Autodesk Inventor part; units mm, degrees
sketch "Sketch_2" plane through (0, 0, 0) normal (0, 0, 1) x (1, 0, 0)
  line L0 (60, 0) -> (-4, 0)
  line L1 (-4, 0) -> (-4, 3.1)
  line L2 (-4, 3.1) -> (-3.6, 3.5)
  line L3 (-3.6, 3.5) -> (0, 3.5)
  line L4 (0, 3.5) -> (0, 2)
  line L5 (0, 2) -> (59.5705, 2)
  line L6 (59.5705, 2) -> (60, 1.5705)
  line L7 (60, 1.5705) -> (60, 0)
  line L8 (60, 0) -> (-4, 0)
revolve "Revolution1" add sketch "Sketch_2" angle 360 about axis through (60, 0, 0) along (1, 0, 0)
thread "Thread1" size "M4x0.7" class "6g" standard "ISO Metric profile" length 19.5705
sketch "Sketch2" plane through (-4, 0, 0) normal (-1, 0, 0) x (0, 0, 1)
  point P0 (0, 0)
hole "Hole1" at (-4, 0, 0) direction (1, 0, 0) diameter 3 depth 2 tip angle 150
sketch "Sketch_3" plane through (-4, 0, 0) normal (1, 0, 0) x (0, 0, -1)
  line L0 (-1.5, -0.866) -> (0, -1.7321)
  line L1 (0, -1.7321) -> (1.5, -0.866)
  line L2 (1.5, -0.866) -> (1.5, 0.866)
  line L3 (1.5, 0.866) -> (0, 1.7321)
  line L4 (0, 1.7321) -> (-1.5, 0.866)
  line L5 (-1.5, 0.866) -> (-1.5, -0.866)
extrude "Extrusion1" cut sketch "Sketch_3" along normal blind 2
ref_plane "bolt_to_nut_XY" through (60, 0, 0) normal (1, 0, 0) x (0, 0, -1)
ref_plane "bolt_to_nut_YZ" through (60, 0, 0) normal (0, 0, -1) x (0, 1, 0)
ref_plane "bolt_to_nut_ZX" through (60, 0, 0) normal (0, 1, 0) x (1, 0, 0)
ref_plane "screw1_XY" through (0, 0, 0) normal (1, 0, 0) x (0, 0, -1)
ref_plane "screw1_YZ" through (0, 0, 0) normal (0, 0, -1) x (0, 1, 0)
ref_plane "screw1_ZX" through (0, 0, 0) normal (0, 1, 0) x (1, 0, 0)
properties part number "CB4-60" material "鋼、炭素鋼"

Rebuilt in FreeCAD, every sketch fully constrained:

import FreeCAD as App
import Part
import Sketcher

V = App.Vector
Q = App.Units.Quantity

doc = App.newDocument("Part")
body = doc.addObject("PartDesign::Body", "Body")

sketch1 = body.newObject("Sketcher::SketchObject", "Sketch")
sketch1.AttachmentSupport = (doc.getObject("XY_Plane"), [""])
sketch1.MapMode = "FlatFace"
sketch1.addGeometry(Part.LineSegment(V(-4, 0, 0), V(60, 0, 0)), False)
sketch1.addGeometry(Part.LineSegment(V(60, 0, 0), V(60, 1.6, 0)), False)
sketch1.addGeometry(Part.LineSegment(V(60, 1.6, 0), V(59.6, 2, 0)), False)
sketch1.addGeometry(Part.LineSegment(V(59.6, 2, 0), V(0, 2, 0)), False)
sketch1.addGeometry(Part.LineSegment(V(0, 2, 0), V(0, 3.5, 0)), False)
sketch1.addGeometry(Part.LineSegment(V(0, 3.5, 0), V(-3.6, 3.5, 0)), False)
sketch1.addGeometry(Part.LineSegment(V(-3.6, 3.5, 0), V(-4, 3.1, 0)), False)
sketch1.addGeometry(Part.LineSegment(V(-4, 3.1, 0), V(-4, 0, 0)), False)
sketch1.addConstraint(Sketcher.Constraint("Coincident", 0, 2, 1, 1))
sketch1.addConstraint(Sketcher.Constraint("Coincident", 1, 2, 2, 1))
sketch1.addConstraint(Sketcher.Constraint("Coincident", 2, 2, 3, 1))
sketch1.addConstraint(Sketcher.Constraint("Coincident", 3, 2, 4, 1))
sketch1.addConstraint(Sketcher.Constraint("Coincident", 4, 2, 5, 1))
sketch1.addConstraint(Sketcher.Constraint("Coincident", 5, 2, 6, 1))
sketch1.addConstraint(Sketcher.Constraint("Coincident", 6, 2, 7, 1))
sketch1.addConstraint(Sketcher.Constraint("Coincident", 7, 2, 0, 1))
sketch1.addConstraint(Sketcher.Constraint("Horizontal", 0))
sketch1.addConstraint(Sketcher.Constraint("Vertical", 1))
sketch1.addConstraint(Sketcher.Constraint("Horizontal", 3))
sketch1.addConstraint(Sketcher.Constraint("Vertical", 4))
sketch1.addConstraint(Sketcher.Constraint("Horizontal", 5))
sketch1.addConstraint(Sketcher.Constraint("Vertical", 7))
sketch1.addConstraint(Sketcher.Constraint("PointOnObject", 0, 2, -1))
sketch1.addConstraint(Sketcher.Constraint("PointOnObject", 3, 2, -2))
sketch1.addConstraint(Sketcher.Constraint("Perpendicular", 2, 6))
sketch1.addConstraint(Sketcher.Constraint("DistanceX", 0, 1, 0, 2, 64.0))
sketch1.addConstraint(Sketcher.Constraint("Angle", 2, Q("135 deg")))
sketch1.addConstraint(Sketcher.Constraint("DistanceX", 5, 2, 5, 1, 3.6))
sketch1.addConstraint(Sketcher.Constraint("DistanceY", 4, 1, 4, 2, 1.5))
sketch1.addConstraint(Sketcher.Constraint("DistanceY", 7, 2, 7, 1, 3.1))
sketch1.addConstraint(Sketcher.Constraint("DistanceX", -1, 1, 0, 2, 60.0))
sketch1.addConstraint(Sketcher.Constraint("DistanceX", 3, 2, 3, 1, 59.5705))
revolution = body.newObject("PartDesign::Revolution", "Revolution")
revolution.Profile = sketch1
revolution.ReferenceAxis = (sketch1, ["H_Axis"])
revolution.Angle = 360

sketch2 = body.newObject("Sketcher::SketchObject", "Sketch001")
sketch2.AttachmentSupport = (doc.getObject("YZ_Plane"), [""])
sketch2.MapMode = "FlatFace"
sketch2.AttachmentOffset = App.Placement(V(0, 0, -4), App.Rotation())
sketch2.addGeometry(Part.Circle(V(0, 0, 0), V(0, 0, 1), 1.5), False)
sketch2.addConstraint(Sketcher.Constraint("Coincident", 0, 3, -1, 1))
sketch2.addConstraint(Sketcher.Constraint("Diameter", 0, 3.0))
doc.recompute()
hole = body.newObject("PartDesign::Hole", "Hole")
hole.Profile = sketch2
hole.ThreadType = "None"
hole.Diameter = 3
hole.DepthType = "Dimension"
hole.Depth = 2
hole.DrillPoint = "Angled"
hole.DrillPointAngle = 150
hole.Reversed = True

sketch3 = body.newObject("Sketcher::SketchObject", "Sketch002")
sketch3.AttachmentSupport = (doc.getObject("YZ_Plane"), [""])
sketch3.MapMode = "FlatFace"
sketch3.AttachmentOffset = App.Placement(V(0, 0, -4), App.Rotation())
sketch3.addGeometry(Part.LineSegment(V(0.9, 1.5, 0), V(-0.9, 1.5, 0)), False)
sketch3.addGeometry(Part.LineSegment(V(-0.9, 1.5, 0), V(-1.7, 0, 0)), False)
sketch3.addGeometry(Part.LineSegment(V(-1.7, 0, 0), V(-0.9, -1.5, 0)), False)
sketch3.addGeometry(Part.LineSegment(V(-0.9, -1.5, 0), V(0.9, -1.5, 0)), False)
sketch3.addGeometry(Part.LineSegment(V(0.9, -1.5, 0), V(1.7, 0, 0)), False)
sketch3.addGeometry(Part.LineSegment(V(1.7, 0, 0), V(0.9, 1.5, 0)), False)
sketch3.addConstraint(Sketcher.Constraint("Coincident", 0, 2, 1, 1))
sketch3.addConstraint(Sketcher.Constraint("Coincident", 1, 2, 2, 1))
sketch3.addConstraint(Sketcher.Constraint("Coincident", 2, 2, 3, 1))
sketch3.addConstraint(Sketcher.Constraint("Coincident", 3, 2, 4, 1))
sketch3.addConstraint(Sketcher.Constraint("Coincident", 4, 2, 5, 1))
sketch3.addConstraint(Sketcher.Constraint("Coincident", 5, 2, 0, 1))
sketch3.addConstraint(Sketcher.Constraint("Horizontal", 0))
sketch3.addConstraint(Sketcher.Constraint("Horizontal", 3))
sketch3.addConstraint(Sketcher.Constraint("Symmetric", 0, 2, 3, 2, -1, 1))
sketch3.addConstraint(Sketcher.Constraint("Symmetric", 1, 2, 4, 2, -1, 1))
sketch3.addConstraint(Sketcher.Constraint("PointOnObject", 1, 2, -1))
sketch3.addConstraint(Sketcher.Constraint("Parallel", 2, 5))
sketch3.addConstraint(Sketcher.Constraint("Vertical", 0, 2, 2, 2))
sketch3.addConstraint(Sketcher.Constraint("DistanceY", 2, 2, 0, 2, 3.0))
sketch3.addConstraint(Sketcher.Constraint("DistanceX", 0, 2, 0, 1, 1.732))
sketch3.addConstraint(Sketcher.Constraint("Distance", 1, 1.732))
pocket1 = body.newObject("PartDesign::Pocket", "Pocket")
pocket1.Profile = sketch3
pocket1.Length = 2
pocket1.Reversed = True

doc.recompute()
